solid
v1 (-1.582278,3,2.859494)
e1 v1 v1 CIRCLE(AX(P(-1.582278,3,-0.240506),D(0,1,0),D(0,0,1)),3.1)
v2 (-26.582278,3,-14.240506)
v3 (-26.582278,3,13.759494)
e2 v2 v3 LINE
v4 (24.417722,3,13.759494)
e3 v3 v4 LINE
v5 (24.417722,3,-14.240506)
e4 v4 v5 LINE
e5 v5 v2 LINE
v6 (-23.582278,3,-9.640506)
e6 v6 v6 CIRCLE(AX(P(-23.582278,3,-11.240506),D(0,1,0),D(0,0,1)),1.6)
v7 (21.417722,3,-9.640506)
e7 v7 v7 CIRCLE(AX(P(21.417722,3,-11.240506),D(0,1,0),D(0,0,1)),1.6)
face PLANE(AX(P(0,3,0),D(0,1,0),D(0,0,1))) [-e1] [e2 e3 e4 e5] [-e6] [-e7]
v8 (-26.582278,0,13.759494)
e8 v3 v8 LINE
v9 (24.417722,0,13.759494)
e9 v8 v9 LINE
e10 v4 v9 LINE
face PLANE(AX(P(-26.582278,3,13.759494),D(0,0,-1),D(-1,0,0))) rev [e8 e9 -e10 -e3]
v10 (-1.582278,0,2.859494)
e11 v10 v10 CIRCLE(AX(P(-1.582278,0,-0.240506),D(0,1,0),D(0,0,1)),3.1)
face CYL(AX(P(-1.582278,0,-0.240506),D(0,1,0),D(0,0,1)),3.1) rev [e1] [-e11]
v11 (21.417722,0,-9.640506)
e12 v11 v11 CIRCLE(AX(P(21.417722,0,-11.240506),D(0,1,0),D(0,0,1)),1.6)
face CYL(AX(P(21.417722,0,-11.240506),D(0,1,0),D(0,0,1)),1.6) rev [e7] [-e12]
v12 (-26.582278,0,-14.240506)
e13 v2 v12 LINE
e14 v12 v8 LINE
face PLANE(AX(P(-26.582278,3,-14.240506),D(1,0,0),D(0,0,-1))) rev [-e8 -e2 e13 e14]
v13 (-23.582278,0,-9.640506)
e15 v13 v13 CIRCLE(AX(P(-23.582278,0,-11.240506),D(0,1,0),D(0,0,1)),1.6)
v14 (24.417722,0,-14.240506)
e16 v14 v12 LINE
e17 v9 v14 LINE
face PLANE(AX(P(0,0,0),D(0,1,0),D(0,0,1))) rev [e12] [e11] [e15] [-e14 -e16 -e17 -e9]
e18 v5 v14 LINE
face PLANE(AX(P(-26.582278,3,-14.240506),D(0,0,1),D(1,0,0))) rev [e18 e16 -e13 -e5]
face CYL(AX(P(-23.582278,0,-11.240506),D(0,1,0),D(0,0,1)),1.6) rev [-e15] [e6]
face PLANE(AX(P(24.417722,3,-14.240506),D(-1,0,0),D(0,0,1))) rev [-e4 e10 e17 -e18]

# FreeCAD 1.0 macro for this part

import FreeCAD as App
import Part
import Sketcher
Q = App.Units.Quantity


def add_polygon(sketch, points):
    """Adds a closed chain of lines whose ends are joined by coincident constraints."""
    first, n = sketch.GeometryCount, len(points)
    for a, b in zip(points, points[1:] + points[:1]):
        sketch.addGeometry(Part.LineSegment(App.Vector(*a, 0), App.Vector(*b, 0)), False)
    for i in range(n):
        sketch.addConstraint(Sketcher.Constraint("Coincident", first + i, 2, first + (i + 1) % n, 1))

doc = App.newDocument("Part")
body = doc.addObject("PartDesign::Body", "Body")

sketch1 = body.newObject("Sketcher::SketchObject", "Sketch")
sketch1.AttachmentSupport = (doc.getObject("XZ_Plane"), [""])
sketch1.MapMode = "FlatFace"
add_polygon(sketch1, [(-27, -14), (-27, 14), (24, 14), (24, -14)])
sketch1.addConstraint([
    Sketcher.Constraint("Vertical", 0),
    Sketcher.Constraint("Horizontal", 1),
    Sketcher.Constraint("Vertical", 2),
    Sketcher.Constraint("Horizontal", 3),
    Sketcher.Constraint("DistanceX", 1, 1, 1, 2, Q("51 mm")),
    Sketcher.Constraint("DistanceY", 0, 1, 0, 2, Q("28 mm")),
    Sketcher.Constraint("DistanceX", 0, 2, -1, 1, Q("26.582278 mm")),
    Sketcher.Constraint("DistanceY", -1, 1, 0, 2, Q("13.759494 mm")),
])
pad1 = body.newObject("PartDesign::Pad", "Pad")
pad1.Profile = sketch1
pad1.Length = 3
pad1.Reversed = True

sketch2 = body.newObject("Sketcher::SketchObject", "Sketch001")
sketch2.AttachmentSupport = (doc.getObject("XZ_Plane"), [""])
sketch2.MapMode = "FlatFace"
sketch2.AttachmentOffset = App.Placement(App.Vector(0, 0, -3), App.Rotation())
sketch2.addGeometry([
    Part.Circle(App.Vector(-23.6, -11.2, 0), App.Vector(0, 0, 1), 1.6),
    Part.Circle(App.Vector(21.4, -11.2, 0), App.Vector(0, 0, 1), 1.6),
], False)
sketch2.addConstraint([
    Sketcher.Constraint("Equal", 0, 1),
    Sketcher.Constraint("Horizontal", 0, 3, 1, 3),
    Sketcher.Constraint("Diameter", 0, Q("3.2 mm")),
    Sketcher.Constraint("DistanceX", 0, 3, 1, 3, Q("45 mm")),
    Sketcher.Constraint("DistanceX", 0, 3, -1, 1, Q("23.582278 mm")),
    Sketcher.Constraint("DistanceY", 0, 3, -1, 1, Q("11.240506 mm")),
])
pocket1 = body.newObject("PartDesign::Pocket", "Pocket")
pocket1.Profile = sketch2
pocket1.Length = 3
pocket1.Reversed = True

sketch3 = body.newObject("Sketcher::SketchObject", "Sketch002")
sketch3.AttachmentSupport = (doc.getObject("XZ_Plane"), [""])
sketch3.MapMode = "FlatFace"
sketch3.AttachmentOffset = App.Placement(App.Vector(0, 0, -3), App.Rotation())
sketch3.addGeometry(Part.Circle(App.Vector(-1.6, -0.2, 0), App.Vector(0, 0, 1), 3.1), False)
sketch3.addConstraint([
    Sketcher.Constraint("Diameter", 0, Q("6.2 mm")),
    Sketcher.Constraint("DistanceX", 0, 3, -1, 1, Q("1.582278 mm")),
    Sketcher.Constraint("DistanceY", 0, 3, -1, 1, Q("0.240506 mm")),
])
pocket2 = body.newObject("PartDesign::Pocket", "Pocket001")
pocket2.Profile = sketch3
pocket2.Length = 3
pocket2.Reversed = True

doc.recompute()
